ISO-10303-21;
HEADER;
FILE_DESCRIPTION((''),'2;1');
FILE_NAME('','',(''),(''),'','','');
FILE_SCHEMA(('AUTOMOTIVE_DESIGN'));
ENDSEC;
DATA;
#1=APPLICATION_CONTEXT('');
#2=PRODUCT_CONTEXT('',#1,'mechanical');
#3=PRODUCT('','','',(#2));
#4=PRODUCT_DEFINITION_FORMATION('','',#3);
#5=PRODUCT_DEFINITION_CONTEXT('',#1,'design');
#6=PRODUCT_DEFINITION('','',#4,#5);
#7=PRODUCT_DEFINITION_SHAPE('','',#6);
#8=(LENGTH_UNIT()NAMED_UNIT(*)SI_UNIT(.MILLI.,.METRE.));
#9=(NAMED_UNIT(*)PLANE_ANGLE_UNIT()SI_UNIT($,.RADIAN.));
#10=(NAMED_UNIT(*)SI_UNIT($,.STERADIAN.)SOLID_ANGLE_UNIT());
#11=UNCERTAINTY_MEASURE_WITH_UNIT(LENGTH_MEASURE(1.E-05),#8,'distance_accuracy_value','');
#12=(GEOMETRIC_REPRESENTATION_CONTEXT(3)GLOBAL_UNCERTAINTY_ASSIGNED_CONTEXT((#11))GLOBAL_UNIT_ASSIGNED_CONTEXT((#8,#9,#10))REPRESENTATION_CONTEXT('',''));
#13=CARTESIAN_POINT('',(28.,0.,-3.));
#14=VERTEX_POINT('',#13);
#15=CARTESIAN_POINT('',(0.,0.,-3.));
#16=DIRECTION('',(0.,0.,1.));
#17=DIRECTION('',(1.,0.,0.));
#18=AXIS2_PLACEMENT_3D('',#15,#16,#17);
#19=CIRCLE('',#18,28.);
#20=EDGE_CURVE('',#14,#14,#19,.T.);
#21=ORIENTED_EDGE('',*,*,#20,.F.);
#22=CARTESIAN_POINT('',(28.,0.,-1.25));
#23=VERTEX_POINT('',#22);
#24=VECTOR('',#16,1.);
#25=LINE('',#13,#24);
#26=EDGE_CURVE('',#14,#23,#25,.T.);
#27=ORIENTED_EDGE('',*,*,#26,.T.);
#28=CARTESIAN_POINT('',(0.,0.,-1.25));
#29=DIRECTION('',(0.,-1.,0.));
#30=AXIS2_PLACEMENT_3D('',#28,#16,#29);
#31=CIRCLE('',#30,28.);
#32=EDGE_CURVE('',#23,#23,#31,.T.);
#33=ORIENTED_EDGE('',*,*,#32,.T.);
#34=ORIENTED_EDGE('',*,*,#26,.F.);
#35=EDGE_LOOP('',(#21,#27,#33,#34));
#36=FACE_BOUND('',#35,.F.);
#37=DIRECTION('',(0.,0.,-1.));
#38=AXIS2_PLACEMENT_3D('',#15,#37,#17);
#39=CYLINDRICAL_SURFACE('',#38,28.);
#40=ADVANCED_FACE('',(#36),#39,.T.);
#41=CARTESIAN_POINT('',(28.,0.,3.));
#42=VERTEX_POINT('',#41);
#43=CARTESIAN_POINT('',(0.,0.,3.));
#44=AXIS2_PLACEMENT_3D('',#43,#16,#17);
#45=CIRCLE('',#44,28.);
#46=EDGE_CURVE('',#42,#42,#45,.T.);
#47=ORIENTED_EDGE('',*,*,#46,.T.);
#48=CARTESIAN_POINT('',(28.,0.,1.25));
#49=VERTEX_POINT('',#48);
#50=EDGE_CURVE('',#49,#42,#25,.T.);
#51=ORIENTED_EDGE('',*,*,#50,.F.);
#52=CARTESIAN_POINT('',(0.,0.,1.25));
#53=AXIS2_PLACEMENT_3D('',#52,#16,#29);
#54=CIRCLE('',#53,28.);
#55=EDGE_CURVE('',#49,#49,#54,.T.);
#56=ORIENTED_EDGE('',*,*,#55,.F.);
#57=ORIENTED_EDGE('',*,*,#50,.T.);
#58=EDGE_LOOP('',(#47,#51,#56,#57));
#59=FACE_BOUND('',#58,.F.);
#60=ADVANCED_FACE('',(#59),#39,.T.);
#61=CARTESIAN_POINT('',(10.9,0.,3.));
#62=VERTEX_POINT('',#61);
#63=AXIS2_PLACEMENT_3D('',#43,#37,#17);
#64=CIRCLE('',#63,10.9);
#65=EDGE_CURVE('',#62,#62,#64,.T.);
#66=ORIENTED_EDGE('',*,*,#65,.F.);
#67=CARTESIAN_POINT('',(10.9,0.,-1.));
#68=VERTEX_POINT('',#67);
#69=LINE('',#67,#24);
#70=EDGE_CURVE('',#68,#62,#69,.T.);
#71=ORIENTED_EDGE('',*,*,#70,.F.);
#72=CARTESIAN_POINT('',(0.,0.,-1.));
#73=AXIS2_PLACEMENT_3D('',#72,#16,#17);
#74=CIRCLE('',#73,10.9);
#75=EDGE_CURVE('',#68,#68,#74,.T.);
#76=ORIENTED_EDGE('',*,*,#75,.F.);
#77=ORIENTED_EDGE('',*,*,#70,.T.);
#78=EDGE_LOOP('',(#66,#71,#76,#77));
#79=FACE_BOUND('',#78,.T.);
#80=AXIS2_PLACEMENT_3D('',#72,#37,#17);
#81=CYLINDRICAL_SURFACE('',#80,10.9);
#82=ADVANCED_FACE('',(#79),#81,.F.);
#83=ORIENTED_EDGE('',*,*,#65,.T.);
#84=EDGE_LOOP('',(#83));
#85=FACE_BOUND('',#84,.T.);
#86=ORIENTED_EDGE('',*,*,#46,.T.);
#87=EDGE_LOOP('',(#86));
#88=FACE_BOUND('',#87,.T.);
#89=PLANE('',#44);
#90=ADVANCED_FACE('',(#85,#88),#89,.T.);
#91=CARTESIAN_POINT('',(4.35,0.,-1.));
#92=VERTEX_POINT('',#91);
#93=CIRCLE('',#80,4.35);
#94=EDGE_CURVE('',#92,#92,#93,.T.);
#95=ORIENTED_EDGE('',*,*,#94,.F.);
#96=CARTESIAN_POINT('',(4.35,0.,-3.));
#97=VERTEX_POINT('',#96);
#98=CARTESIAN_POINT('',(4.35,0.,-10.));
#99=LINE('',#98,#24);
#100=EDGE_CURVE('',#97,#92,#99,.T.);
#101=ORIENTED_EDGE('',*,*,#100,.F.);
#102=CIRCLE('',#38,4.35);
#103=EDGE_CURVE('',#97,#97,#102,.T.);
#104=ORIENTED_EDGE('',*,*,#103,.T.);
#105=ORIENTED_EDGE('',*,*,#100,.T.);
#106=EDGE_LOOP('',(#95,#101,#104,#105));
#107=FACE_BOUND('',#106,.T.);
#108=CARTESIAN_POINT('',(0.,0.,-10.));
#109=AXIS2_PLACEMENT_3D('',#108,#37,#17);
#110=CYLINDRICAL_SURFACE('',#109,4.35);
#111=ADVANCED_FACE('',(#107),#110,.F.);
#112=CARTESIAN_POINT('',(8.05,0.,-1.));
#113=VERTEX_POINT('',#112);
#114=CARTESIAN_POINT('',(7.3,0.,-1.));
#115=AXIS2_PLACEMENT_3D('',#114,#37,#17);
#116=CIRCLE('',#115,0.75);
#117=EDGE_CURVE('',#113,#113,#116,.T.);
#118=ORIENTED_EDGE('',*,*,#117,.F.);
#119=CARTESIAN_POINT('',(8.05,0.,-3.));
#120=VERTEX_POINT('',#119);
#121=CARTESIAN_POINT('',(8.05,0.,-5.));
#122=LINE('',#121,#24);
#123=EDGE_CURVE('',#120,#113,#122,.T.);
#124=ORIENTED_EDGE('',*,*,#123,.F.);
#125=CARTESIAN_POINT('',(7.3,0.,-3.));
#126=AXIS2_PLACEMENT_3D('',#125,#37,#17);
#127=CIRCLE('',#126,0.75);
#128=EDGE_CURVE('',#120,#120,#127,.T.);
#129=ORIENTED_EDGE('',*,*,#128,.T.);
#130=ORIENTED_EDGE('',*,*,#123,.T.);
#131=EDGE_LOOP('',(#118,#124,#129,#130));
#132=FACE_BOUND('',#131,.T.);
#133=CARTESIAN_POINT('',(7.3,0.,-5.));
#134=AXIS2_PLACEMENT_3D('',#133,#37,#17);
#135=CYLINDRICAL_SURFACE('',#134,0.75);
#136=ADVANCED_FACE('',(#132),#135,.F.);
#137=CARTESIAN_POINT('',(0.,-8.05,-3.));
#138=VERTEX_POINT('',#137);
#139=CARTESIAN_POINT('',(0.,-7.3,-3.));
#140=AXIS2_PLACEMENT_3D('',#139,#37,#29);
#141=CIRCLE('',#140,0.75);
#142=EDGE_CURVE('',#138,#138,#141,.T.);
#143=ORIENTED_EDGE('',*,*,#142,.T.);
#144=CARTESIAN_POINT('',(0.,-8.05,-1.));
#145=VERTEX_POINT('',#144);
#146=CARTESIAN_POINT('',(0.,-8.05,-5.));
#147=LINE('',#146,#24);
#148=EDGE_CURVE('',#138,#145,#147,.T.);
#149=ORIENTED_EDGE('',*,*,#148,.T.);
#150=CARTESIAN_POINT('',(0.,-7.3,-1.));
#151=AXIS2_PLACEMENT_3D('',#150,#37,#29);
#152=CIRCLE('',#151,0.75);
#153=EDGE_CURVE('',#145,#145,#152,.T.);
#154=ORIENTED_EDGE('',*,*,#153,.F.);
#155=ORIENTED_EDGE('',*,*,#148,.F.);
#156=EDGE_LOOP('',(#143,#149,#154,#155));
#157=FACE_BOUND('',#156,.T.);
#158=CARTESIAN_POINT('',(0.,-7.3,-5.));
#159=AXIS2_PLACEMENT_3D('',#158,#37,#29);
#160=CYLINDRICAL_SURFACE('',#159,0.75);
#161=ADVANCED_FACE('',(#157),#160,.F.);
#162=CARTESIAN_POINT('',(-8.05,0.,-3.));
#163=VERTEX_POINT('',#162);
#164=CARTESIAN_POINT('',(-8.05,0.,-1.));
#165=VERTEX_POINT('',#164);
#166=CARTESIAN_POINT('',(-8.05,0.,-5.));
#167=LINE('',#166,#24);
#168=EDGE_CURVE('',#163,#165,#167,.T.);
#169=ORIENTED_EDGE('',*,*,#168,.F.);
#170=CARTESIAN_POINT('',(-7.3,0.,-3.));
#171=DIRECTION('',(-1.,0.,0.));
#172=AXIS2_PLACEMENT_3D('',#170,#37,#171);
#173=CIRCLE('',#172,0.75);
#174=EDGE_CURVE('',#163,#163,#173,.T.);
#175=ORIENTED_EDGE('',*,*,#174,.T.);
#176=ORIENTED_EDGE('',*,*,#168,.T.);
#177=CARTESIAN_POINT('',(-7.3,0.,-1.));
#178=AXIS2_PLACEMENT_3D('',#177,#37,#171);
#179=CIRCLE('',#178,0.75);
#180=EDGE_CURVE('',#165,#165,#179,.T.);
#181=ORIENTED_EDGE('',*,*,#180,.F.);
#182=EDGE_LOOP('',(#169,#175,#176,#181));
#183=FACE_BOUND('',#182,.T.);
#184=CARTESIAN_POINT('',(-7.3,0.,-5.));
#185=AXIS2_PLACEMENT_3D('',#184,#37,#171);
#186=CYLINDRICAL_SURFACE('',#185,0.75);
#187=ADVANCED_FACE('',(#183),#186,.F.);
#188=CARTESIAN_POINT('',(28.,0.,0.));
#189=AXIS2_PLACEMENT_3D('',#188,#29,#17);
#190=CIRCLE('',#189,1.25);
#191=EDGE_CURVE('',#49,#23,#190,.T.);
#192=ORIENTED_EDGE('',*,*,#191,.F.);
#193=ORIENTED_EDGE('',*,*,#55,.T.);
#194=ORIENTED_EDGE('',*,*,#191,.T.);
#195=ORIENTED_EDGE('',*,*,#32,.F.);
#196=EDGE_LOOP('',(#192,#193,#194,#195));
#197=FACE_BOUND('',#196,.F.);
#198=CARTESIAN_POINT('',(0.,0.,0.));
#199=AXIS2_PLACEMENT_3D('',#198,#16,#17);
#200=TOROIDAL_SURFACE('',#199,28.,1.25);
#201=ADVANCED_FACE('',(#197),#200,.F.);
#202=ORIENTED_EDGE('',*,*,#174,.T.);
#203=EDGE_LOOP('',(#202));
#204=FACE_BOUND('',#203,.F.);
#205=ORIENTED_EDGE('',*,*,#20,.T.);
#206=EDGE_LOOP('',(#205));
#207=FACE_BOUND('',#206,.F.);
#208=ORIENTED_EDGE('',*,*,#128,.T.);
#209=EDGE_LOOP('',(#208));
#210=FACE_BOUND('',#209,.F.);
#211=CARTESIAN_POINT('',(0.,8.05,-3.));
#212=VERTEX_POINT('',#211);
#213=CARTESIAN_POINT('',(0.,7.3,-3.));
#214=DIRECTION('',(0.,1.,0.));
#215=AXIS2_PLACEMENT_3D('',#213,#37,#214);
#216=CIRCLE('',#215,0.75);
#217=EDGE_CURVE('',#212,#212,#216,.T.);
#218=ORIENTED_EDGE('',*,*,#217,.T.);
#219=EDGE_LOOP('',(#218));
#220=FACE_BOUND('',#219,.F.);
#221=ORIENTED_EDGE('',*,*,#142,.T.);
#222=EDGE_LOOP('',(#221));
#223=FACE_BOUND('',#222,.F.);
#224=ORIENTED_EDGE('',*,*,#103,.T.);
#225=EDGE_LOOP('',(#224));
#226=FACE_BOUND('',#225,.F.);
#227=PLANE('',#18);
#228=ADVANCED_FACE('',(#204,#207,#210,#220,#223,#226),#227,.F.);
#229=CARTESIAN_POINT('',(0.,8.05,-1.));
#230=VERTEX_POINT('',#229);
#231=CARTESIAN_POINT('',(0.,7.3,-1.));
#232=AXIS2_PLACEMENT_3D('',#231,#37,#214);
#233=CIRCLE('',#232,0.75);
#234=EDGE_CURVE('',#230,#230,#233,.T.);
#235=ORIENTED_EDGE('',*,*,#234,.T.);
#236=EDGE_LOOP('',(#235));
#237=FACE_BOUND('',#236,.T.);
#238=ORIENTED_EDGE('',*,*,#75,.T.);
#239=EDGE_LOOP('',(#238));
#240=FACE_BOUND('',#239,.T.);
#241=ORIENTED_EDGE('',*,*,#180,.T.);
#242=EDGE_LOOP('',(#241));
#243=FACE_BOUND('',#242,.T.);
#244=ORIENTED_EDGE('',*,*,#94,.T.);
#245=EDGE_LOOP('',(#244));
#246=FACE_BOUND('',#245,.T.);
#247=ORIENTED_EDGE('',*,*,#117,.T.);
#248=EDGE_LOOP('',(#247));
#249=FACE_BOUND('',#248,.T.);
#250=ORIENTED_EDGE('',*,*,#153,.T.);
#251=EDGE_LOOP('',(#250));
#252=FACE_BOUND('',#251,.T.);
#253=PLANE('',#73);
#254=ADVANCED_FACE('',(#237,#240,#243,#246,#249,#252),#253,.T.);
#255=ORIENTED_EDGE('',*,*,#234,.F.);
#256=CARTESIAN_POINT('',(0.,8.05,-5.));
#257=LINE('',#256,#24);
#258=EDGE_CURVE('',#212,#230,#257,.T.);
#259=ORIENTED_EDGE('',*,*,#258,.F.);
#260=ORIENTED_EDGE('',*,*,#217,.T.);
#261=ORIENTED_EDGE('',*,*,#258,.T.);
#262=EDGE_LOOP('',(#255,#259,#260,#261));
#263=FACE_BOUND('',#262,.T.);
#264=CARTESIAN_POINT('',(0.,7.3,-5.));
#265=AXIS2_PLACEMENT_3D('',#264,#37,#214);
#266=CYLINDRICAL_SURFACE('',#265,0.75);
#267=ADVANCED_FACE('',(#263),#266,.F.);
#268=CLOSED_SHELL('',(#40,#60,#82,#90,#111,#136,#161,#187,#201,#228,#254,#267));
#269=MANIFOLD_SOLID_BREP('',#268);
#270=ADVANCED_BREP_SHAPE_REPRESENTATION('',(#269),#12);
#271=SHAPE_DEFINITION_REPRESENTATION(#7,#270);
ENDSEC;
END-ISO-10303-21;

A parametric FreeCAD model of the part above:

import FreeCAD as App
import Part
import Sketcher

V = App.Vector
Q = App.Units.Quantity

doc = App.newDocument("Part")
body = doc.addObject("PartDesign::Body", "Body")

# Sketch on XY plane
sketch1 = body.newObject("Sketcher::SketchObject", "Sketch")
sketch1.AttachmentSupport = (doc.getObject("XY_Plane"), [""])
sketch1.MapMode = "FlatFace"
sketch1.AttachmentOffset = App.Placement(V(0, 0, -5), App.Rotation())
sketch1.addGeometry(Part.Circle(V(7.3, 0, 0), V(0, 0, 1), 0.75), False)
sketch1.addConstraint(Sketcher.Constraint("PointOnObject", 0, 3, -1))
sketch1.addConstraint(Sketcher.Constraint("Diameter", 0, Q("1.5 mm")))
sketch1.addConstraint(Sketcher.Constraint("DistanceX", -1, 1, 0, 3, Q("7.3 mm")))
pad1 = body.newObject("PartDesign::Pad", "Pad")
pad1.Profile = sketch1
pad1.Length = 10
body2 = doc.addObject("PartDesign::Body", "Body001")
body2.AllowCompound = True
doc.recompute()

body2.BaseFeature = body
doc.recompute()

body3 = doc.addObject("PartDesign::Body", "Body002")
body3.BaseFeature = body
body3.Placement = App.Placement(V(0, 0, 0), App.Rotation(V(0, 0, 1), 90))
boolean = body2.newObject("PartDesign::Boolean", "Boolean")
boolean.Type = "Fuse"
boolean.addObjects([body3])
doc.recompute()

body4 = doc.addObject("PartDesign::Body", "Body003")
body4.BaseFeature = body
body4.Placement = App.Placement(V(0, 0, 0), App.Rotation(V(0, 0, 1), 180))
boolean2 = body2.newObject("PartDesign::Boolean", "Boolean001")
boolean2.Type = "Fuse"
boolean2.addObjects([body4])
doc.recompute()

body.Placement = App.Placement(V(0, 0, 0), App.Rotation(V(0, 0, 1), 270))
boolean3 = body2.newObject("PartDesign::Boolean", "Boolean002")
boolean3.Type = "Fuse"
boolean3.addObjects([body])
body5 = doc.addObject("PartDesign::Body", "Body004")

# Sketch on XY plane
sketch2 = body5.newObject("Sketcher::SketchObject", "Sketch001")
sketch2.AttachmentSupport = (doc.getObject("XY_Plane004"), [""])
sketch2.MapMode = "FlatFace"
sketch2.AttachmentOffset = App.Placement(V(0, 0, -10), App.Rotation())
sketch2.addGeometry(Part.Circle(V(0, 0, 0), V(0, 0, 1), 4.35), False)
sketch2.addConstraint(Sketcher.Constraint("Coincident", 0, 3, -1, 1))
sketch2.addConstraint(Sketcher.Constraint("Diameter", 0, Q("8.7 mm")))
pad2 = body5.newObject("PartDesign::Pad", "Pad001")
pad2.Profile = sketch2
pad2.Length = 10
body6 = doc.addObject("PartDesign::Body", "Body005")

# Sketch on XY plane
sketch3 = body6.newObject("Sketcher::SketchObject", "Sketch002")
sketch3.AttachmentSupport = (doc.getObject("XY_Plane005"), [""])
sketch3.MapMode = "FlatFace"
sketch3.AttachmentOffset = App.Placement(V(0, 0, -1), App.Rotation())
sketch3.addGeometry(Part.Circle(V(0, 0, 0), V(0, 0, 1), 10.9), False)
sketch3.addConstraint(Sketcher.Constraint("Coincident", 0, 3, -1, 1))
sketch3.addConstraint(Sketcher.Constraint("Diameter", 0, Q("21.8 mm")))
pad3 = body6.newObject("PartDesign::Pad", "Pad002")
pad3.Profile = sketch3
pad3.Length = 10
body7 = doc.addObject("PartDesign::Body", "Body006")

# Sketch on XZ plane
sketch4 = body7.newObject("Sketcher::SketchObject", "Sketch003")
sketch4.AttachmentSupport = (doc.getObject("XZ_Plane006"), [""])
sketch4.MapMode = "FlatFace"
sketch4.addGeometry(Part.Circle(V(28, 0, 0), V(0, 0, 1), 1.25), False)
sketch4.addConstraint(Sketcher.Constraint("PointOnObject", 0, 3, -1))
sketch4.addConstraint(Sketcher.Constraint("Diameter", 0, Q("2.5 mm")))
sketch4.addConstraint(Sketcher.Constraint("DistanceX", -1, 1, 0, 3, Q("28 mm")))
revolution = body7.newObject("PartDesign::Revolution", "Revolution")
revolution.Profile = sketch4
revolution.ReferenceAxis = (sketch4, ["V_Axis"])
revolution.Angle = 360
body8 = doc.addObject("PartDesign::Body", "Body007")

# Sketch on XY plane
sketch5 = body8.newObject("Sketcher::SketchObject", "Sketch004")
sketch5.AttachmentSupport = (doc.getObject("XY_Plane007"), [""])
sketch5.MapMode = "FlatFace"
sketch5.AttachmentOffset = App.Placement(V(0, 0, -3), App.Rotation())
sketch5.addGeometry(Part.Circle(V(0, 0, 0), V(0, 0, 1), 28), False)
sketch5.addConstraint(Sketcher.Constraint("Coincident", 0, 3, -1, 1))
sketch5.addConstraint(Sketcher.Constraint("Diameter", 0, Q("56 mm")))
pad4 = body8.newObject("PartDesign::Pad", "Pad003")
pad4.Profile = sketch5
pad4.Length = 6
doc.recompute()

boolean4 = body8.newObject("PartDesign::Boolean", "Boolean003")
boolean4.Type = "Cut"
boolean4.addObjects([body7])
doc.recompute()

boolean5 = body8.newObject("PartDesign::Boolean", "Boolean004")
boolean5.Type = "Cut"
boolean5.addObjects([body6])
doc.recompute()

boolean6 = body8.newObject("PartDesign::Boolean", "Boolean005")
boolean6.Type = "Cut"
boolean6.addObjects([body5])
doc.recompute()

boolean7 = body8.newObject("PartDesign::Boolean", "Boolean006")
boolean7.Type = "Cut"
boolean7.addObjects([body2])

doc.recompute()
